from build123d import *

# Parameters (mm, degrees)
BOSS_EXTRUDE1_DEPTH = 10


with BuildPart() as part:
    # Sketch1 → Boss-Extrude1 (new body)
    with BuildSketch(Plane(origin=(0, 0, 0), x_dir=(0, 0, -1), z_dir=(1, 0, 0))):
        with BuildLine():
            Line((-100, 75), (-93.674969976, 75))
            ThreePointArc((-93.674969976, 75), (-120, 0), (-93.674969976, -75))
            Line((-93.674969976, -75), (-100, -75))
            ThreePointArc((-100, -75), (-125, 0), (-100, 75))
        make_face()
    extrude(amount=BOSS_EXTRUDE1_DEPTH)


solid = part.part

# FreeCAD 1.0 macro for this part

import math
import FreeCAD as App
import Part
import Sketcher

doc = App.newDocument("Part")
body = doc.addObject("PartDesign::Body", "Body")

# Sketch on YZ plane
sketch1 = body.newObject("Sketcher::SketchObject", "Sketch")
sketch1.AttachmentSupport = (doc.getObject("YZ_Plane"), [""])
sketch1.MapMode = "FlatFace"
sketch1.addGeometry(Part.LineSegment(App.Vector(75, 93.67497, 0), App.Vector(75, 100, 0)), False)
sketch1.addGeometry(Part.ArcOfCircle(Part.Circle(App.Vector(0, 0, 0), App.Vector(0, 0, 1), 125), math.radians(53.130102), math.radians(126.869898)), False)
sketch1.addGeometry(Part.LineSegment(App.Vector(-75, 100, 0), App.Vector(-75, 93.67497, 0)), False)
sketch1.addGeometry(Part.ArcOfCircle(Part.Circle(App.Vector(0, 0, 0), App.Vector(0, 0, 1), 120), math.radians(51.317813), math.radians(128.682187)), False)
sketch1.addConstraint(Sketcher.Constraint("Coincident", 0, 2, 1, 1))
sketch1.addConstraint(Sketcher.Constraint("Coincident", 1, 2, 2, 1))
sketch1.addConstraint(Sketcher.Constraint("Coincident", 2, 2, 3, 2))
sketch1.addConstraint(Sketcher.Constraint("Coincident", 3, 1, 0, 1))
sketch1.addConstraint(Sketcher.Constraint("Vertical", 0))
sketch1.addConstraint(Sketcher.Constraint("Vertical", 2))
sketch1.addConstraint(Sketcher.Constraint("Coincident", 1, 3, -1, 1))
sketch1.addConstraint(Sketcher.Constraint("Coincident", 3, 3, -1, 1))
sketch1.addConstraint(Sketcher.Constraint("Horizontal", 0, 2, 1, 2))
sketch1.addConstraint(Sketcher.Constraint("Radius", 1, 125.0))
sketch1.addConstraint(Sketcher.Constraint("Radius", 3, 120.0))
sketch1.addConstraint(Sketcher.Constraint("DistanceX", -1, 1, 0, 2, 75.0))
pad1 = body.newObject("PartDesign::Pad", "Pad")
pad1.Profile = sketch1
pad1.Length = 10

doc.recompute()
